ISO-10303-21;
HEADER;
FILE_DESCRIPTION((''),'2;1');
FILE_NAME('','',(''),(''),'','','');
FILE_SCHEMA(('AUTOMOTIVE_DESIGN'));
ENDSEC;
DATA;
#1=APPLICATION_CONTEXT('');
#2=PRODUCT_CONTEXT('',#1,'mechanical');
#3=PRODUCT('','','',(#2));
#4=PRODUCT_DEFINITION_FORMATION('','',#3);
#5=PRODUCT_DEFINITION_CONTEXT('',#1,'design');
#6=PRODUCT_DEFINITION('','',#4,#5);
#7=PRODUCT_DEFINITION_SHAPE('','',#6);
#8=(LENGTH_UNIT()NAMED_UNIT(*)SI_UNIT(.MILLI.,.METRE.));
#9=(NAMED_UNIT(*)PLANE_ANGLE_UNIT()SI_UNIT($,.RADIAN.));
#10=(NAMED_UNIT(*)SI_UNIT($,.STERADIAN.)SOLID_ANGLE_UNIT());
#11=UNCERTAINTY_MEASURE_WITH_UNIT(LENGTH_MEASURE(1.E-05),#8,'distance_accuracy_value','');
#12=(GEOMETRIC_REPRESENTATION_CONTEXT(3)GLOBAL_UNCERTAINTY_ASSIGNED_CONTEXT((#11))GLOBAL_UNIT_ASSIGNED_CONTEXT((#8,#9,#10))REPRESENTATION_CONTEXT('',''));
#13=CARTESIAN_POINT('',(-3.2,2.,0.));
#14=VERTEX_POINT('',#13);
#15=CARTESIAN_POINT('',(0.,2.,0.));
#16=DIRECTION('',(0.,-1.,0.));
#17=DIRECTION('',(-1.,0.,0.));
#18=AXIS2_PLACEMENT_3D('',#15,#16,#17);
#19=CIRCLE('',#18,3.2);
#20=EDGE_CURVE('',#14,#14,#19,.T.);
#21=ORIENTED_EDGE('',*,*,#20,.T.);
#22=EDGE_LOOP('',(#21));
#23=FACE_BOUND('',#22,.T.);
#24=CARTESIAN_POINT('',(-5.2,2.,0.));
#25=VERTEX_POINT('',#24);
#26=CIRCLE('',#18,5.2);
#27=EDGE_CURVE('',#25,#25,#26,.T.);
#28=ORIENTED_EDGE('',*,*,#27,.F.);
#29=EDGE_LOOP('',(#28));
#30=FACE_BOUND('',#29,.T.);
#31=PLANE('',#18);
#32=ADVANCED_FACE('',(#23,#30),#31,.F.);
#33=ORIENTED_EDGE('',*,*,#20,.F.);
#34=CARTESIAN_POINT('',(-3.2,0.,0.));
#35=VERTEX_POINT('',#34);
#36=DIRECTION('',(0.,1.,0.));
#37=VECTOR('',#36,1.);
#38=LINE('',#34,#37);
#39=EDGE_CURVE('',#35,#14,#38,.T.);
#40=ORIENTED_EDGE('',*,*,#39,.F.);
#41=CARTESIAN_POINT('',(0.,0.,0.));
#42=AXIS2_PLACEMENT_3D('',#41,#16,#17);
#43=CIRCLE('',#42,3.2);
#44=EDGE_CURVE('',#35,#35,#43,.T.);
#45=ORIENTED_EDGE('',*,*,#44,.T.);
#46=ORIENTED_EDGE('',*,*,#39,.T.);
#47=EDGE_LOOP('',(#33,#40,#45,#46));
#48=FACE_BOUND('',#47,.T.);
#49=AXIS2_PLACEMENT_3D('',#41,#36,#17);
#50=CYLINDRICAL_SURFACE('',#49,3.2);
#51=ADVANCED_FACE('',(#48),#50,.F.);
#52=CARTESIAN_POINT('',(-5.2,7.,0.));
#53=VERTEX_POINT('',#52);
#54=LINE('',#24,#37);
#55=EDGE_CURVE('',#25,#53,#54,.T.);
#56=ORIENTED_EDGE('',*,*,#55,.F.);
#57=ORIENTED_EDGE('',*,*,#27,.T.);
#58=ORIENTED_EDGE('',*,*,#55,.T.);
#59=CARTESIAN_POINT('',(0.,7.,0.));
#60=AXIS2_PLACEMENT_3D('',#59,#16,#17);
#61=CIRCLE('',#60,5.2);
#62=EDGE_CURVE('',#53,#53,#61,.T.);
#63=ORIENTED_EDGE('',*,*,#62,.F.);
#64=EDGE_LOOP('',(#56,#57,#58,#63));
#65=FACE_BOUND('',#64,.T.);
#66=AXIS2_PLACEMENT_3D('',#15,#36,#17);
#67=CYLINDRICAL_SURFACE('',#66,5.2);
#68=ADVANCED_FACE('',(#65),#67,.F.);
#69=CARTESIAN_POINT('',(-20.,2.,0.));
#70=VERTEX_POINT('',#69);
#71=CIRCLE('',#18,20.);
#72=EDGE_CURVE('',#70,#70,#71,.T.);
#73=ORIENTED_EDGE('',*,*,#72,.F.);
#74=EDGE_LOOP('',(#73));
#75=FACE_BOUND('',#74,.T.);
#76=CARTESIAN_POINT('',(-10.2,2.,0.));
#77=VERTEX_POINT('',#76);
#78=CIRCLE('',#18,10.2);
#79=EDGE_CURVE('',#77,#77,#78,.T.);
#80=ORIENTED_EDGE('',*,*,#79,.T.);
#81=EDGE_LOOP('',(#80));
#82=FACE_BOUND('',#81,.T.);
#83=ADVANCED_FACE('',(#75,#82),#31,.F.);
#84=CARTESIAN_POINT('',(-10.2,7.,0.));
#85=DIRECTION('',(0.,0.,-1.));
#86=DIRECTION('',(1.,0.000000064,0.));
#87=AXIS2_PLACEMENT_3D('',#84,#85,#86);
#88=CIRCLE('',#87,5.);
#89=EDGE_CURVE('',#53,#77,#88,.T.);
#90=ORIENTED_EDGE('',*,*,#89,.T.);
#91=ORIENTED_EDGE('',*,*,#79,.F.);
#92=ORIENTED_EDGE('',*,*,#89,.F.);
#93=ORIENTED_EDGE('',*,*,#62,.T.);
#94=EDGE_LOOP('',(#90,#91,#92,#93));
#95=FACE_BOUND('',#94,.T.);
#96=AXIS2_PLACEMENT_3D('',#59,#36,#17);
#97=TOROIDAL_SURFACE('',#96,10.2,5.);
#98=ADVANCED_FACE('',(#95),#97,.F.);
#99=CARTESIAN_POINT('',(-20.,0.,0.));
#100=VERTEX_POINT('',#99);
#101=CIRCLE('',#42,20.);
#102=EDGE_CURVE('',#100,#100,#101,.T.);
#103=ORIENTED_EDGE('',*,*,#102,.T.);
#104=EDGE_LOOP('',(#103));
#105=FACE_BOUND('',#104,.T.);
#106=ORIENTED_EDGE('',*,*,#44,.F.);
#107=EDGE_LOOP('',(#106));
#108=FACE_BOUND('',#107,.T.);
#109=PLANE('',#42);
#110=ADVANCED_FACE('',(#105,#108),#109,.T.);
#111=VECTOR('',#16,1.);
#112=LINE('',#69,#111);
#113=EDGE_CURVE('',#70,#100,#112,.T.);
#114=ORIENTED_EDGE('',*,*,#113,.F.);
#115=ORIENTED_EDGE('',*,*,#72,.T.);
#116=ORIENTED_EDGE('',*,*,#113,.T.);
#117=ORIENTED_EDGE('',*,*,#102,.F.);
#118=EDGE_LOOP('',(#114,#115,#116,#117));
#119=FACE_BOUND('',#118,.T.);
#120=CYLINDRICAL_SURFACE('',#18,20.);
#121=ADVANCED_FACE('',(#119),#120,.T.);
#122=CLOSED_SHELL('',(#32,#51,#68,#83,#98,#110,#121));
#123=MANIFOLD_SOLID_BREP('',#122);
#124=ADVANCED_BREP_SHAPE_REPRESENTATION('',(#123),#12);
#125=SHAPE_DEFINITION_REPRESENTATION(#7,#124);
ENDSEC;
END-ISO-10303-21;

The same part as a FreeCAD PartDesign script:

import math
import FreeCAD as App
import Part
import Sketcher

doc = App.newDocument("Part")
body = doc.addObject("PartDesign::Body", "Body")

# Sketch on XY plane
sketch1 = doc.addObject("Sketcher::SketchObject", "Sketch")
body.addObject(sketch1)
sketch1.AttachmentSupport = (doc.XY_Plane, [""])
sketch1.MapMode = "FlatFace"
sketch1.addGeometry(Part.LineSegment(App.Vector(-3.2, 0, 0), App.Vector(-3.2, 2, 0)), False)
sketch1.addGeometry(Part.LineSegment(App.Vector(-3.2, 2, 0), App.Vector(-5.2, 2, 0)), False)
sketch1.addGeometry(Part.LineSegment(App.Vector(-5.2, 2, 0), App.Vector(-5.2, 7, 0)), False)
sketch1.addGeometry(Part.ArcOfCircle(Part.Circle(App.Vector(-10.2, 7, 0), App.Vector(0, 0, 1), 5), math.radians(-90), math.radians(0)), False)
sketch1.addGeometry(Part.LineSegment(App.Vector(-10.2, 2, 0), App.Vector(-20, 2, 0)), False)
sketch1.addGeometry(Part.LineSegment(App.Vector(-20, 2, 0), App.Vector(-20, 0, 0)), False)
sketch1.addGeometry(Part.LineSegment(App.Vector(-20, 0, 0), App.Vector(-3.2, 0, 0)), False)
sketch1.addConstraint(Sketcher.Constraint("Coincident", 0, 2, 1, 1))
sketch1.addConstraint(Sketcher.Constraint("Coincident", 1, 2, 2, 1))
sketch1.addConstraint(Sketcher.Constraint("Tangent", 2, 2, 3, 2))
sketch1.addConstraint(Sketcher.Constraint("Tangent", 3, 1, 4, 1))
sketch1.addConstraint(Sketcher.Constraint("Coincident", 4, 2, 5, 1))
sketch1.addConstraint(Sketcher.Constraint("Coincident", 5, 2, 6, 1))
sketch1.addConstraint(Sketcher.Constraint("Coincident", 6, 2, 0, 1))
sketch1.addConstraint(Sketcher.Constraint("Vertical", 0))
sketch1.addConstraint(Sketcher.Constraint("Horizontal", 1))
sketch1.addConstraint(Sketcher.Constraint("Vertical", 2))
sketch1.addConstraint(Sketcher.Constraint("Horizontal", 4))
sketch1.addConstraint(Sketcher.Constraint("Vertical", 5))
sketch1.addConstraint(Sketcher.Constraint("Horizontal", 6))
sketch1.addConstraint(Sketcher.Constraint("PointOnObject", 5, 2, -1))
sketch1.addConstraint(Sketcher.Constraint("Horizontal", 1, 2, 3, 1))
sketch1.addConstraint(Sketcher.Constraint("Equal", 1, 0))
sketch1.addConstraint(Sketcher.Constraint("Radius", 3, 5.0))
sketch1.addConstraint(Sketcher.Constraint("DistanceX", 1, 2, 1, 1, 2.0))
sketch1.addConstraint(Sketcher.Constraint("DistanceX", 4, 2, 4, 1, 9.8))
sketch1.addConstraint(Sketcher.Constraint("DistanceX", 4, 2, -1, 1, 20.0))
revolution = doc.addObject("PartDesign::Revolution", "Revolution")
body.addObject(revolution)
revolution.Profile = sketch1
revolution.ReferenceAxis = (sketch1, ["V_Axis"])
revolution.Angle = 360

doc.recompute()
